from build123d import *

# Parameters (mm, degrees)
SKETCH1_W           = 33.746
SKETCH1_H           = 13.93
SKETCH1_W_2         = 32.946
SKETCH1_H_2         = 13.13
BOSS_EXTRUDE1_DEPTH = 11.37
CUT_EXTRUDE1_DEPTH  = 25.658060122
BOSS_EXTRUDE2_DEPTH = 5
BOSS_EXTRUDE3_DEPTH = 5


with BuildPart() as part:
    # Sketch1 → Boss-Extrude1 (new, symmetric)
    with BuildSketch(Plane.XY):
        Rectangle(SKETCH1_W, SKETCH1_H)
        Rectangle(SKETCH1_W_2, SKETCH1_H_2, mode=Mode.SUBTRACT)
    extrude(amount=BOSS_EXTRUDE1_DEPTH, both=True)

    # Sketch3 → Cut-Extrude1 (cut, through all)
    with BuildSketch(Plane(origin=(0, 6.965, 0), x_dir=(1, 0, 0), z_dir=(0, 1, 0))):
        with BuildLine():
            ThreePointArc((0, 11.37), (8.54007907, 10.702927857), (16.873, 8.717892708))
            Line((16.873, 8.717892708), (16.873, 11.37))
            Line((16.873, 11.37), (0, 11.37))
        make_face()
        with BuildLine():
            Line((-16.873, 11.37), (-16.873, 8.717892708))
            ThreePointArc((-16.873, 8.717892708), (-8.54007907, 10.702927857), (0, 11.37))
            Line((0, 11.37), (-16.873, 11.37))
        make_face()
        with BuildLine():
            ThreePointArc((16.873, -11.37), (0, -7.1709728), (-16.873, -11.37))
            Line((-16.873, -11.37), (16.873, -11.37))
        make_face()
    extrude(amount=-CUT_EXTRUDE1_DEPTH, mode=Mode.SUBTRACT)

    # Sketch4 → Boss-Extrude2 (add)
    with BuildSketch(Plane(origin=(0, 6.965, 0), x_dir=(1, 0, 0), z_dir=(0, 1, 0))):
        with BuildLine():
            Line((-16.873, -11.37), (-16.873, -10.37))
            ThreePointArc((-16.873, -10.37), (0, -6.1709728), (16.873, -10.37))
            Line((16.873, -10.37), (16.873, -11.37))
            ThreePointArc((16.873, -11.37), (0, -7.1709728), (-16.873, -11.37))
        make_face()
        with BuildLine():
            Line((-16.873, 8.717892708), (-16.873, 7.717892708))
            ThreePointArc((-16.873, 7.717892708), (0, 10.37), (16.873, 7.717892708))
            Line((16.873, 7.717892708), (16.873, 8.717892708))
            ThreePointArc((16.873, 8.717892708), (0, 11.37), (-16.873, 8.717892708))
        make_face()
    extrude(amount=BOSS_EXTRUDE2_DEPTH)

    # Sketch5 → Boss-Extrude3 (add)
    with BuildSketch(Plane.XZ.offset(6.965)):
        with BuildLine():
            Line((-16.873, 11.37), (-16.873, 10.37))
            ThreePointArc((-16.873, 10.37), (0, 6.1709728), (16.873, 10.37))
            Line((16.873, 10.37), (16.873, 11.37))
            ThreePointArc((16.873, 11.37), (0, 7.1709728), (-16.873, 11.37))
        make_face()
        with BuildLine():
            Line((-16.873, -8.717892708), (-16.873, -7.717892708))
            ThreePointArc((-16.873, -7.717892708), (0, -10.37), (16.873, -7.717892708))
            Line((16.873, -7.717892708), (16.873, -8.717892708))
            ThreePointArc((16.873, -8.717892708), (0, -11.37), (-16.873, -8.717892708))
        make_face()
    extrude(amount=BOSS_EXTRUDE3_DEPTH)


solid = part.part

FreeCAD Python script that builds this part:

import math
import FreeCAD as App
import Part
import Sketcher
Q = App.Units.Quantity

doc = App.newDocument("Part")
body = doc.addObject("PartDesign::Body", "Body")

# Sketch on XY plane
sketch1 = body.newObject("Sketcher::SketchObject", "Sketch")
sketch1.AttachmentSupport = (doc.getObject("XY_Plane"), [""])
sketch1.MapMode = "FlatFace"
sketch1.addGeometry(Part.LineSegment(App.Vector(-17, 7, 0), App.Vector(-17, -7, 0)), False)
sketch1.addGeometry(Part.LineSegment(App.Vector(-17, -7, 0), App.Vector(17, -7, 0)), False)
sketch1.addGeometry(Part.LineSegment(App.Vector(17, -7, 0), App.Vector(17, 7, 0)), False)
sketch1.addGeometry(Part.LineSegment(App.Vector(17, 7, 0), App.Vector(-17, 7, 0)), False)
sketch1.addGeometry(Part.LineSegment(App.Vector(16, -7, 0), App.Vector(-16, -7, 0)), False)
sketch1.addGeometry(Part.LineSegment(App.Vector(-16, -7, 0), App.Vector(-16, 7, 0)), False)
sketch1.addGeometry(Part.LineSegment(App.Vector(-16, 7, 0), App.Vector(16, 7, 0)), False)
sketch1.addGeometry(Part.LineSegment(App.Vector(16, 7, 0), App.Vector(16, -7, 0)), False)
sketch1.addConstraint(Sketcher.Constraint("Coincident", 0, 2, 1, 1))
sketch1.addConstraint(Sketcher.Constraint("Coincident", 1, 2, 2, 1))
sketch1.addConstraint(Sketcher.Constraint("Coincident", 2, 2, 3, 1))
sketch1.addConstraint(Sketcher.Constraint("Coincident", 3, 2, 0, 1))
sketch1.addConstraint(Sketcher.Constraint("Coincident", 4, 2, 5, 1))
sketch1.addConstraint(Sketcher.Constraint("Coincident", 5, 2, 6, 1))
sketch1.addConstraint(Sketcher.Constraint("Coincident", 6, 2, 7, 1))
sketch1.addConstraint(Sketcher.Constraint("Coincident", 7, 2, 4, 1))
sketch1.addConstraint(Sketcher.Constraint("Vertical", 0))
sketch1.addConstraint(Sketcher.Constraint("Horizontal", 1))
sketch1.addConstraint(Sketcher.Constraint("Vertical", 2))
sketch1.addConstraint(Sketcher.Constraint("Horizontal", 3))
sketch1.addConstraint(Sketcher.Constraint("Horizontal", 4))
sketch1.addConstraint(Sketcher.Constraint("Vertical", 5))
sketch1.addConstraint(Sketcher.Constraint("Horizontal", 6))
sketch1.addConstraint(Sketcher.Constraint("Vertical", 7))
sketch1.addConstraint(Sketcher.Constraint("Symmetric", 0, 2, 2, 2, -1, 1))
sketch1.addConstraint(Sketcher.Constraint("Symmetric", 4, 2, 6, 2, -1, 1))
sketch1.addConstraint(Sketcher.Constraint("DistanceY", 0, 2, 0, 1, Q("13.93 mm")))
sketch1.addConstraint(Sketcher.Constraint("DistanceY", 5, 1, 5, 2, Q("13.13 mm")))
sketch1.addConstraint(Sketcher.Constraint("DistanceX", 0, 2, 4, 2, Q("0.4 mm")))
sketch1.addConstraint(Sketcher.Constraint("DistanceX", 1, 1, 1, 2, Q("33.746 mm")))
pad1 = body.newObject("PartDesign::Pad", "Pad")
pad1.Profile = sketch1
pad1.Length = 22.74
pad1.Midplane = True

# Sketch on XZ plane
sketch2 = body.newObject("Sketcher::SketchObject", "Sketch001")
sketch2.AttachmentSupport = (doc.getObject("XZ_Plane"), [""])
sketch2.MapMode = "FlatFace"
sketch2.AttachmentOffset = App.Placement(App.Vector(0, 0, -6.965), App.Rotation())
sketch2.addGeometry(Part.ArcOfCircle(Part.Circle(App.Vector(0, 43.6, 0), App.Vector(0, 0, 1), 55), math.radians(-90), math.radians(-72.13)), False)
sketch2.addGeometry(Part.LineSegment(App.Vector(16.9, -8.7, 0), App.Vector(16.9, -11.4, 0)), False)
sketch2.addGeometry(Part.LineSegment(App.Vector(16.9, -11.4, 0), App.Vector(0, -11.4, 0)), False)
sketch2.addGeometry(Part.LineSegment(App.Vector(-16.9, -11.4, 0), App.Vector(-16.9, -8.7, 0)), False)
sketch2.addGeometry(Part.ArcOfCircle(Part.Circle(App.Vector(0, 43.6, 0), App.Vector(0, 0, 1), 55), math.radians(-107.87), math.radians(-90)), False)
sketch2.addGeometry(Part.LineSegment(App.Vector(0, -11.4, 0), App.Vector(-16.9, -11.4, 0)), False)
sketch2.addGeometry(Part.ArcOfCircle(Part.Circle(App.Vector(0, 43.2, 0), App.Vector(0, 0, 1), 36), math.radians(-118), math.radians(-62)), False)
sketch2.addGeometry(Part.LineSegment(App.Vector(-16.9, 11.4, 0), App.Vector(16.9, 11.4, 0)), False)
sketch2.addConstraint(Sketcher.Constraint("Coincident", 0, 2, 1, 1))
sketch2.addConstraint(Sketcher.Constraint("Coincident", 1, 2, 2, 1))
sketch2.addConstraint(Sketcher.Constraint("Tangent", 2, 2, 0, 1))
sketch2.addConstraint(Sketcher.Constraint("Coincident", 3, 2, 4, 1))
sketch2.addConstraint(Sketcher.Constraint("Tangent", 4, 2, 5, 1))
sketch2.addConstraint(Sketcher.Constraint("Coincident", 5, 2, 3, 1))
sketch2.addConstraint(Sketcher.Constraint("Coincident", 6, 1, 7, 1))
sketch2.addConstraint(Sketcher.Constraint("Coincident", 7, 2, 6, 2))
sketch2.addConstraint(Sketcher.Constraint("Vertical", 1))
sketch2.addConstraint(Sketcher.Constraint("Horizontal", 2))
sketch2.addConstraint(Sketcher.Constraint("Vertical", 3))
sketch2.addConstraint(Sketcher.Constraint("Horizontal", 5))
sketch2.addConstraint(Sketcher.Constraint("Horizontal", 7))
sketch2.addConstraint(Sketcher.Constraint("Coincident", 4, 3, 0, 3))
sketch2.addConstraint(Sketcher.Constraint("Equal", 0, 4))
sketch2.addConstraint(Sketcher.Constraint("Symmetric", 1, 2, 6, 1, -1, 1))
sketch2.addConstraint(Sketcher.Constraint("Symmetric", 0, 2, 3, 2, -2))
sketch2.addConstraint(Sketcher.Constraint("PointOnObject", 6, 3, -2))
sketch2.addConstraint(Sketcher.Constraint("Radius", 0, Q("55 mm")))
sketch2.addConstraint(Sketcher.Constraint("Radius", 6, Q("36 mm")))
sketch2.addConstraint(Sketcher.Constraint("DistanceX", 2, 2, 2, 1, Q("16.873 mm")))
sketch2.addConstraint(Sketcher.Constraint("DistanceY", -1, 1, 0, 3, Q("43.63 mm")))
pocket1 = body.newObject("PartDesign::Pocket", "Pocket")
pocket1.Profile = sketch2
pocket1.Type = "ThroughAll"
pocket1.Reversed = True

# Sketch on XZ plane
sketch3 = body.newObject("Sketcher::SketchObject", "Sketch002")
sketch3.AttachmentSupport = (doc.getObject("XZ_Plane"), [""])
sketch3.MapMode = "FlatFace"
sketch3.AttachmentOffset = App.Placement(App.Vector(0, 0, -6.965), App.Rotation())
sketch3.addGeometry(Part.LineSegment(App.Vector(-16.9, 10.4, 0), App.Vector(-16.9, 11.4, 0)), False)
sketch3.addGeometry(Part.ArcOfCircle(Part.Circle(App.Vector(0, 43.2, 0), App.Vector(0, 0, 1), 36), math.radians(-118), math.radians(-62)), False)
sketch3.addGeometry(Part.LineSegment(App.Vector(16.9, 11.4, 0), App.Vector(16.9, 10.4, 0)), False)
sketch3.addGeometry(Part.ArcOfCircle(Part.Circle(App.Vector(0, 42.2, 0), App.Vector(0, 0, 1), 36), math.radians(-118), math.radians(-62)), False)
sketch3.addGeometry(Part.LineSegment(App.Vector(-16.9, -8.7, 0), App.Vector(-16.9, -7.7, 0)), False)
sketch3.addGeometry(Part.ArcOfCircle(Part.Circle(App.Vector(0, 44.6, 0), App.Vector(0, 0, 1), 55), math.radians(-108), math.radians(-72)), False)
sketch3.addGeometry(Part.LineSegment(App.Vector(16.9, -7.7, 0), App.Vector(16.9, -8.7, 0)), False)
sketch3.addGeometry(Part.ArcOfCircle(Part.Circle(App.Vector(0, 43.6, 0), App.Vector(0, 0, 1), 55), math.radians(-108), math.radians(-72)), False)
sketch3.addConstraint(Sketcher.Constraint("Coincident", 0, 2, 1, 1))
sketch3.addConstraint(Sketcher.Constraint("Coincident", 1, 2, 2, 1))
sketch3.addConstraint(Sketcher.Constraint("Coincident", 2, 2, 3, 2))
sketch3.addConstraint(Sketcher.Constraint("Coincident", 3, 1, 0, 1))
sketch3.addConstraint(Sketcher.Constraint("Coincident", 4, 2, 5, 1))
sketch3.addConstraint(Sketcher.Constraint("Coincident", 5, 2, 6, 1))
sketch3.addConstraint(Sketcher.Constraint("Coincident", 6, 2, 7, 2))
sketch3.addConstraint(Sketcher.Constraint("Coincident", 7, 1, 4, 1))
sketch3.addConstraint(Sketcher.Constraint("Vertical", 0))
sketch3.addConstraint(Sketcher.Constraint("Vertical", 2))
sketch3.addConstraint(Sketcher.Constraint("Vertical", 4))
sketch3.addConstraint(Sketcher.Constraint("Vertical", 6))
sketch3.addConstraint(Sketcher.Constraint("Equal", 1, 3))
sketch3.addConstraint(Sketcher.Constraint("Equal", 5, 7))
sketch3.addConstraint(Sketcher.Constraint("Symmetric", 0, 2, 1, 2, -2))
sketch3.addConstraint(Sketcher.Constraint("Symmetric", 4, 2, 5, 2, -2))
sketch3.addConstraint(Sketcher.Constraint("PointOnObject", 3, 3, -2))
sketch3.addConstraint(Sketcher.Constraint("PointOnObject", 7, 3, -2))
sketch3.addConstraint(Sketcher.Constraint("Vertical", 3, 1, 4, 2))
sketch3.addConstraint(Sketcher.Constraint("Equal", 2, 4))
sketch3.addConstraint(Sketcher.Constraint("Radius", 1, Q("36 mm")))
sketch3.addConstraint(Sketcher.Constraint("Radius", 5, Q("55 mm")))
sketch3.addConstraint(Sketcher.Constraint("DistanceY", 0, 1, 0, 2, Q("1 mm")))
sketch3.addConstraint(Sketcher.Constraint("DistanceY", -1, 1, 5, 3, Q("44.63 mm")))
sketch3.addConstraint(Sketcher.Constraint("DistanceY", -1, 1, 0, 2, Q("11.37 mm")))
sketch3.addConstraint(Sketcher.Constraint("DistanceX", 0, 2, -1, 1, Q("16.873 mm")))
pad2 = body.newObject("PartDesign::Pad", "Pad001")
pad2.Profile = sketch3
pad2.Length = 5
pad2.Reversed = True

# Sketch on XZ plane
sketch4 = body.newObject("Sketcher::SketchObject", "Sketch003")
sketch4.AttachmentSupport = (doc.getObject("XZ_Plane"), [""])
sketch4.MapMode = "FlatFace"
sketch4.AttachmentOffset = App.Placement(App.Vector(0, 0, 6.965), App.Rotation())
sketch4.addGeometry(Part.LineSegment(App.Vector(-16.9, 11.4, 0), App.Vector(-16.9, 10.4, 0)), False)
sketch4.addGeometry(Part.ArcOfCircle(Part.Circle(App.Vector(0, 42.2, 0), App.Vector(0, 0, 1), 36), math.radians(-118), math.radians(-62)), False)
sketch4.addGeometry(Part.LineSegment(App.Vector(16.9, 10.4, 0), App.Vector(16.9, 11.4, 0)), False)
sketch4.addGeometry(Part.ArcOfCircle(Part.Circle(App.Vector(0, 43.2, 0), App.Vector(0, 0, 1), 36), math.radians(-118), math.radians(-62)), False)
sketch4.addGeometry(Part.LineSegment(App.Vector(-16.9, -7.7, 0), App.Vector(-16.9, -8.7, 0)), False)
sketch4.addGeometry(Part.ArcOfCircle(Part.Circle(App.Vector(0, 43.6, 0), App.Vector(0, 0, 1), 55), math.radians(-108), math.radians(-72)), False)
sketch4.addGeometry(Part.LineSegment(App.Vector(16.9, -8.7, 0), App.Vector(16.9, -7.7, 0)), False)
sketch4.addGeometry(Part.ArcOfCircle(Part.Circle(App.Vector(0, 44.6, 0), App.Vector(0, 0, 1), 55), math.radians(-108), math.radians(-72)), False)
sketch4.addConstraint(Sketcher.Constraint("Coincident", 0, 2, 1, 1))
sketch4.addConstraint(Sketcher.Constraint("Coincident", 1, 2, 2, 1))
sketch4.addConstraint(Sketcher.Constraint("Coincident", 2, 2, 3, 2))
sketch4.addConstraint(Sketcher.Constraint("Coincident", 3, 1, 0, 1))
sketch4.addConstraint(Sketcher.Constraint("Coincident", 4, 2, 5, 1))
sketch4.addConstraint(Sketcher.Constraint("Coincident", 5, 2, 6, 1))
sketch4.addConstraint(Sketcher.Constraint("Coincident", 6, 2, 7, 2))
sketch4.addConstraint(Sketcher.Constraint("Coincident", 7, 1, 4, 1))
sketch4.addConstraint(Sketcher.Constraint("Vertical", 0))
sketch4.addConstraint(Sketcher.Constraint("Vertical", 2))
sketch4.addConstraint(Sketcher.Constraint("Vertical", 4))
sketch4.addConstraint(Sketcher.Constraint("Vertical", 6))
sketch4.addConstraint(Sketcher.Constraint("Equal", 1, 3))
sketch4.addConstraint(Sketcher.Constraint("Equal", 5, 7))
sketch4.addConstraint(Sketcher.Constraint("Symmetric", 0, 2, 1, 2, -2))
sketch4.addConstraint(Sketcher.Constraint("Symmetric", 4, 2, 5, 2, -2))
sketch4.addConstraint(Sketcher.Constraint("PointOnObject", 3, 3, -2))
sketch4.addConstraint(Sketcher.Constraint("PointOnObject", 7, 3, -2))
sketch4.addConstraint(Sketcher.Constraint("Vertical", 3, 1, 4, 2))
sketch4.addConstraint(Sketcher.Constraint("Equal", 2, 4))
sketch4.addConstraint(Sketcher.Constraint("Radius", 1, Q("36 mm")))
sketch4.addConstraint(Sketcher.Constraint("Radius", 5, Q("55 mm")))
sketch4.addConstraint(Sketcher.Constraint("DistanceY", 0, 2, 0, 1, Q("1 mm")))
sketch4.addConstraint(Sketcher.Constraint("DistanceY", -1, 1, 5, 3, Q("43.63 mm")))
sketch4.addConstraint(Sketcher.Constraint("DistanceY", -1, 1, 0, 2, Q("10.37 mm")))
sketch4.addConstraint(Sketcher.Constraint("DistanceX", 0, 2, -1, 1, Q("16.873 mm")))
pad3 = body.newObject("PartDesign::Pad", "Pad002")
pad3.Profile = sketch4
pad3.Length = 5

doc.recompute()
